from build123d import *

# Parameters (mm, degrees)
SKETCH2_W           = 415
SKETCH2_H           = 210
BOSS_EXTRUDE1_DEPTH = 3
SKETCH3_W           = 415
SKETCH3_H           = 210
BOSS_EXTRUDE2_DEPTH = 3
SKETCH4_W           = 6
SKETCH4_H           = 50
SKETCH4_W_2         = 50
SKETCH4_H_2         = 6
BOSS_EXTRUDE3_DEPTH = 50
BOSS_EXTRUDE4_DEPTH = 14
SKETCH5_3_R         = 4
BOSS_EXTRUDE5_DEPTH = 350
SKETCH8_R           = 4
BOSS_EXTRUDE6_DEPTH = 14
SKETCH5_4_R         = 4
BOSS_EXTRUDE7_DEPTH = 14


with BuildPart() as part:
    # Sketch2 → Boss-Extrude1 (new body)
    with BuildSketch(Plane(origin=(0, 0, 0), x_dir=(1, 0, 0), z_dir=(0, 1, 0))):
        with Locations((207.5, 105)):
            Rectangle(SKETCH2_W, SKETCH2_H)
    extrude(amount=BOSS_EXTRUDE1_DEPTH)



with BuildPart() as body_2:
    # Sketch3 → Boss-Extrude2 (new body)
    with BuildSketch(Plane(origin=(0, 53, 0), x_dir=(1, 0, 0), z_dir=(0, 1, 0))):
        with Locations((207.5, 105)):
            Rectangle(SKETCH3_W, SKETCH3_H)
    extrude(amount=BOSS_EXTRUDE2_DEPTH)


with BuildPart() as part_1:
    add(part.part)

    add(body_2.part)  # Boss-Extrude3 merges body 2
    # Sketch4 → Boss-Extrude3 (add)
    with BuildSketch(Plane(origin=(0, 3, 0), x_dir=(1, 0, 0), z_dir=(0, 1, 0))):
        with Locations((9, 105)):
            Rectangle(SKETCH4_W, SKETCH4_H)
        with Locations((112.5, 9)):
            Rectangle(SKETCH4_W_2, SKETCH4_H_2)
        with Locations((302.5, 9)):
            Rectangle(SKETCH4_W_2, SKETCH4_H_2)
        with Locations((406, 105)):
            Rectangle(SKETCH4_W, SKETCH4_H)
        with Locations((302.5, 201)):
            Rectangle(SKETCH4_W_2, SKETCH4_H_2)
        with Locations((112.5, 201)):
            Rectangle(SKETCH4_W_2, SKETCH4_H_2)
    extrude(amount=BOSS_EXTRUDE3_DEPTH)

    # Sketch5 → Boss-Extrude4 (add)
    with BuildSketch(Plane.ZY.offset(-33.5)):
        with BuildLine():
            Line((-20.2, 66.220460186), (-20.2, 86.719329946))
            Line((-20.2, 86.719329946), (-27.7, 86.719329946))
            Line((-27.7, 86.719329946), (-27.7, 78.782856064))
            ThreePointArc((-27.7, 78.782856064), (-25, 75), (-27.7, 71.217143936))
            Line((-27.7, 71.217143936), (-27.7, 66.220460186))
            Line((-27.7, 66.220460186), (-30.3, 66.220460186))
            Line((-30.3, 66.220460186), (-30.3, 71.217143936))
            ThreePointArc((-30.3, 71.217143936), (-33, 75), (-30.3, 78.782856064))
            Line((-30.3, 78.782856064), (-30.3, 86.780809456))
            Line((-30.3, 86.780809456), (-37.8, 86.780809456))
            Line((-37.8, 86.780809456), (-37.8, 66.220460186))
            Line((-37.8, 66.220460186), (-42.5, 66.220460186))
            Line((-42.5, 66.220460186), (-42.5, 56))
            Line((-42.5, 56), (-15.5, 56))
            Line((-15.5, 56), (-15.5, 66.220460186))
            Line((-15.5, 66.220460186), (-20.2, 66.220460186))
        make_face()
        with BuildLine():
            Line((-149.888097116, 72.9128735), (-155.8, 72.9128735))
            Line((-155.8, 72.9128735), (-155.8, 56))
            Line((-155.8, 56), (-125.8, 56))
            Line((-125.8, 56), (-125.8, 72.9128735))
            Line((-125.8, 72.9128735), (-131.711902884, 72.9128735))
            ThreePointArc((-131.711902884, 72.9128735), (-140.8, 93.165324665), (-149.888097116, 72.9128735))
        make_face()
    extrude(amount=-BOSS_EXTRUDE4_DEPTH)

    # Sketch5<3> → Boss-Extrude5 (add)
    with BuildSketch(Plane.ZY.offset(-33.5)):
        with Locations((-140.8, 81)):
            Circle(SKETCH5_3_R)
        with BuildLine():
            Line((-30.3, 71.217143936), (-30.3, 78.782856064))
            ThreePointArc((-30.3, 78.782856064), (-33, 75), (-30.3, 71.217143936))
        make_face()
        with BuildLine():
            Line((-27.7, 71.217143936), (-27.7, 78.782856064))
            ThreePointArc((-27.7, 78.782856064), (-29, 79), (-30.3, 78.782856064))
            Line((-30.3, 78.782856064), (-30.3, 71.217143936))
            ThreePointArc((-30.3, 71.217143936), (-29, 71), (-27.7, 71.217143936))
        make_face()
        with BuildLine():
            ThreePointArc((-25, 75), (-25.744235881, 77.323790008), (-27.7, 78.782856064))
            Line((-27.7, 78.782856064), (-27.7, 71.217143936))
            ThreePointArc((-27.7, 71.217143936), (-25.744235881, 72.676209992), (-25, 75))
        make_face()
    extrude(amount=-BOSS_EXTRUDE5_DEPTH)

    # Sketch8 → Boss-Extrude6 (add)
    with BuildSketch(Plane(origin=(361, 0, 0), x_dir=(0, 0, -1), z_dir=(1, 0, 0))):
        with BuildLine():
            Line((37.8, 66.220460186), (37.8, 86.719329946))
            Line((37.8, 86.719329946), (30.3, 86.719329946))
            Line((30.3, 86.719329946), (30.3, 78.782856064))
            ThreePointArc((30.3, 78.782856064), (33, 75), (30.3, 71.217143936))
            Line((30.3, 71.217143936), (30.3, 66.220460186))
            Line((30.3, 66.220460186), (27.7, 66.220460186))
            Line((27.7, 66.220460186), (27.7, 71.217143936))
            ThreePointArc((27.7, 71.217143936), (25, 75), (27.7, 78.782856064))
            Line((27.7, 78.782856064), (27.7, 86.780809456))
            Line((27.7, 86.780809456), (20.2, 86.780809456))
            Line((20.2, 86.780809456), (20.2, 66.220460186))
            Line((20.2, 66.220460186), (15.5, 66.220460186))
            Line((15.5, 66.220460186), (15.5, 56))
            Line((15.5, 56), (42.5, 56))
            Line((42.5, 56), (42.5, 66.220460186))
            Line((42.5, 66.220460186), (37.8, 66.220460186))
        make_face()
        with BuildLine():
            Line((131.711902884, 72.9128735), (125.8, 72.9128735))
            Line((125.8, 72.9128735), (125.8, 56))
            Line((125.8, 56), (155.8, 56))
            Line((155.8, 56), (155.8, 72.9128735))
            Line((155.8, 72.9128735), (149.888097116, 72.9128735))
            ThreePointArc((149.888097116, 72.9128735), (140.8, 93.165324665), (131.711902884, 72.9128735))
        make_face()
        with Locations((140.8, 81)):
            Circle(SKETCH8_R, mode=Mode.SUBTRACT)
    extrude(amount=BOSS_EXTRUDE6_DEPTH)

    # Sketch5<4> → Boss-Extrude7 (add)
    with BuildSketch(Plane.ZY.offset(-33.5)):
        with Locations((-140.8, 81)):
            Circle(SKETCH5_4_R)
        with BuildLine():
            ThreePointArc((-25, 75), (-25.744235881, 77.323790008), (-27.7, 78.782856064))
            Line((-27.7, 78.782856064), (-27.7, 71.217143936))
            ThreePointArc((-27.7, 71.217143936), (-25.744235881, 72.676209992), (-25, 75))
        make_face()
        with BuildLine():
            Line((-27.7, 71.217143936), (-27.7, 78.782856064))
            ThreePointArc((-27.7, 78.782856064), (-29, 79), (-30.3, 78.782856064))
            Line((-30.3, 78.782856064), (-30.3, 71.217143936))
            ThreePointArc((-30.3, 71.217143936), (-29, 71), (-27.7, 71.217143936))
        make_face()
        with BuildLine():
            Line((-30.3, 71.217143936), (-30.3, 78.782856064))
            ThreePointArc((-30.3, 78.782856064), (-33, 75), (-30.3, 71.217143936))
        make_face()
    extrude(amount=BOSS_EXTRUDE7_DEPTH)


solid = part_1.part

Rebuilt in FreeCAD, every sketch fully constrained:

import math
import FreeCAD as App
import Part
import Sketcher
Q = App.Units.Quantity


def add_polygon(sketch, points):
    """Adds a closed chain of lines whose ends are joined by coincident constraints."""
    first, n = sketch.GeometryCount, len(points)
    for a, b in zip(points, points[1:] + points[:1]):
        sketch.addGeometry(Part.LineSegment(App.Vector(*a, 0), App.Vector(*b, 0)), False)
    for i in range(n):
        sketch.addConstraint(Sketcher.Constraint("Coincident", first + i, 2, first + (i + 1) % n, 1))

doc = App.newDocument("Part")
body = doc.addObject("PartDesign::Body", "Body")

# Sketch on XZ plane
sketch1 = body.newObject("Sketcher::SketchObject", "Sketch")
sketch1.AttachmentSupport = (doc.getObject("XZ_Plane"), [""])
sketch1.MapMode = "FlatFace"
add_polygon(sketch1, [(0, -210), (0, 0), (415, 0), (415, -210)])  # lines 0-3
sketch1.addConstraint([
    Sketcher.Constraint("Vertical", 0),
    Sketcher.Constraint("Horizontal", 1),
    Sketcher.Constraint("Vertical", 2),
    Sketcher.Constraint("Horizontal", 3),
    Sketcher.Constraint("Coincident", 0, 2, -1, 1),
    Sketcher.Constraint("DistanceX", 1, 1, 1, 2, Q("415 mm")),
    Sketcher.Constraint("DistanceY", 0, 1, 0, 2, Q("210 mm")),
])
pad1 = body.newObject("PartDesign::Pad", "Pad")
pad1.Profile = sketch1
pad1.Length = 3
pad1.Reversed = True
body2 = doc.addObject("PartDesign::Body", "Body001")

# Sketch on XZ plane
sketch2 = body2.newObject("Sketcher::SketchObject", "Sketch001")
sketch2.AttachmentSupport = (doc.getObject("XZ_Plane001"), [""])
sketch2.MapMode = "FlatFace"
sketch2.AttachmentOffset = App.Placement(App.Vector(0, 0, -53), App.Rotation())
add_polygon(sketch2, [(0, -210), (0, 0), (415, 0), (415, -210)])  # lines 0-3
sketch2.addConstraint([
    Sketcher.Constraint("Vertical", 0),
    Sketcher.Constraint("Horizontal", 1),
    Sketcher.Constraint("Vertical", 2),
    Sketcher.Constraint("Horizontal", 3),
    Sketcher.Constraint("Coincident", 0, 2, -1, 1),
    Sketcher.Constraint("DistanceX", 1, 1, 1, 2, Q("415 mm")),
    Sketcher.Constraint("DistanceY", 0, 1, 0, 2, Q("210 mm")),
])
pad2 = body2.newObject("PartDesign::Pad", "Pad001")
pad2.Profile = sketch2
pad2.Length = 3
pad2.Reversed = True
body.AllowCompound = True
doc.recompute()

boolean = body.newObject("PartDesign::Boolean", "Boolean")
boolean.Type = "Fuse"
boolean.addObjects([body2])

# Sketch on XZ plane
sketch3 = body.newObject("Sketcher::SketchObject", "Sketch002")
sketch3.AttachmentSupport = (doc.getObject("XZ_Plane"), [""])
sketch3.MapMode = "FlatFace"
sketch3.AttachmentOffset = App.Placement(App.Vector(0, 0, -3), App.Rotation())
add_polygon(sketch3, [(6, -130), (6, -80), (12, -80), (12, -130)])  # lines 0-3
add_polygon(sketch3, [(88, -12), (88, -6), (138, -6), (138, -12)])  # lines 4-7
add_polygon(sketch3, [(278, -12), (278, -6), (328, -6), (328, -12)])  # lines 8-11
add_polygon(sketch3, [(403, -130), (403, -80), (409, -80), (409, -130)])  # lines 12-15
add_polygon(sketch3, [(278, -204), (278, -198), (328, -198), (328, -204)])  # lines 16-19
add_polygon(sketch3, [(88, -204), (88, -198), (138, -198), (138, -204)])  # lines 20-23
sketch3.addConstraint([
    Sketcher.Constraint("Vertical", 0),
    Sketcher.Constraint("Horizontal", 1),
    Sketcher.Constraint("Vertical", 2),
    Sketcher.Constraint("Horizontal", 3),
    Sketcher.Constraint("Vertical", 4),
    Sketcher.Constraint("Horizontal", 5),
    Sketcher.Constraint("Vertical", 6),
    Sketcher.Constraint("Horizontal", 7),
    Sketcher.Constraint("Vertical", 8),
    Sketcher.Constraint("Horizontal", 9),
    Sketcher.Constraint("Vertical", 10),
    Sketcher.Constraint("Horizontal", 11),
    Sketcher.Constraint("Vertical", 12),
    Sketcher.Constraint("Horizontal", 13),
    Sketcher.Constraint("Vertical", 14),
    Sketcher.Constraint("Horizontal", 15),
    Sketcher.Constraint("Vertical", 16),
    Sketcher.Constraint("Horizontal", 17),
    Sketcher.Constraint("Vertical", 18),
    Sketcher.Constraint("Horizontal", 19),
    Sketcher.Constraint("Vertical", 20),
    Sketcher.Constraint("Horizontal", 21),
    Sketcher.Constraint("Vertical", 22),
    Sketcher.Constraint("Horizontal", 23),
    Sketcher.Constraint("Horizontal", 5, 2, 8, 2),
    Sketcher.Constraint("Horizontal", 7, 2, 10, 2),
    Sketcher.Constraint("Horizontal", 1, 2, 12, 2),
    Sketcher.Constraint("Horizontal", 3, 2, 14, 2),
    Sketcher.Constraint("Horizontal", 17, 2, 20, 2),
    Sketcher.Constraint("Horizontal", 19, 2, 22, 2),
    Sketcher.Constraint("Vertical", 11, 2, 16, 2),
    Sketcher.Constraint("Vertical", 10, 2, 17, 2),
    Sketcher.Constraint("Vertical", 7, 2, 20, 2),
    Sketcher.Constraint("Vertical", 6, 2, 21, 2),
    Sketcher.Constraint("Equal", 7, 9),
    Sketcher.Constraint("Equal", 3, 13),
    Sketcher.Constraint("Equal", 23, 0),
    Sketcher.Constraint("Equal", 15, 4),
    Sketcher.Constraint("Equal", 10, 16),
    Sketcher.Constraint("DistanceX", 1, 1, 1, 2, Q("6 mm")),
    Sketcher.Constraint("DistanceX", 5, 1, 5, 2, Q("50 mm")),
    Sketcher.Constraint("DistanceX", -1, 1, 0, 2, Q("6 mm")),
    Sketcher.Constraint("DistanceY", 0, 2, -1, 1, Q("80 mm")),
    Sketcher.Constraint("DistanceY", 4, 2, -1, 1, Q("6 mm")),
    Sketcher.Constraint("DistanceX", -1, 1, 12, 2, Q("403 mm")),
    Sketcher.Constraint("DistanceY", 16, 2, -1, 1, Q("198 mm")),
    Sketcher.Constraint("DistanceX", 5, 2, 8, 2, Q("140 mm")),
    Sketcher.Constraint("DistanceX", -1, 1, 4, 2, Q("87.5 mm")),
])
pad3 = body.newObject("PartDesign::Pad", "Pad002")
pad3.Profile = sketch3
pad3.Length = 50
pad3.Reversed = True

# Sketch on YZ plane
sketch4 = body.newObject("Sketcher::SketchObject", "Sketch003")
sketch4.AttachmentSupport = (doc.getObject("YZ_Plane"), [""])
sketch4.MapMode = "FlatFace"
sketch4.AttachmentOffset = App.Placement(App.Vector(0, 0, 33.5), App.Rotation())
sketch4.addGeometry([
    Part.LineSegment(App.Vector(66.2, -20.2, 0), App.Vector(86.7, -20.2, 0)),  # 0
    Part.LineSegment(App.Vector(86.7, -20.2, 0), App.Vector(86.7, -27.7, 0)),  # 1
    Part.LineSegment(App.Vector(86.7, -27.7, 0), App.Vector(78.8, -27.7, 0)),  # 2
    Part.ArcOfCircle(Part.Circle(App.Vector(75, -29, 0), App.Vector(0, 0, 1), 4), math.radians(19), math.radians(161)),  # 3
    Part.LineSegment(App.Vector(71.2, -27.7, 0), App.Vector(66.2, -27.7, 0)),  # 4
    Part.LineSegment(App.Vector(66.2, -27.7, 0), App.Vector(66.2, -30.3, 0)),  # 5
    Part.LineSegment(App.Vector(66.2, -30.3, 0), App.Vector(71.2, -30.3, 0)),  # 6
    Part.ArcOfCircle(Part.Circle(App.Vector(75, -29, 0), App.Vector(0, 0, 1), 4), math.radians(-161), math.radians(-19)),  # 7
    Part.LineSegment(App.Vector(78.8, -30.3, 0), App.Vector(86.8, -30.3, 0)),  # 8
    Part.LineSegment(App.Vector(86.8, -30.3, 0), App.Vector(86.8, -37.8, 0)),  # 9
    Part.LineSegment(App.Vector(86.8, -37.8, 0), App.Vector(66.2, -37.8, 0)),  # 10
    Part.LineSegment(App.Vector(66.2, -37.8, 0), App.Vector(66.2, -42.5, 0)),  # 11
    Part.LineSegment(App.Vector(66.2, -42.5, 0), App.Vector(56, -42.5, 0)),  # 12
    Part.LineSegment(App.Vector(56, -42.5, 0), App.Vector(56, -15.5, 0)),  # 13
    Part.LineSegment(App.Vector(56, -15.5, 0), App.Vector(66.2, -15.5, 0)),  # 14
    Part.LineSegment(App.Vector(66.2, -15.5, 0), App.Vector(66.2, -20.2, 0)),  # 15
    Part.LineSegment(App.Vector(72.9, -149.9, 0), App.Vector(72.9, -155.8, 0)),  # 16
    Part.LineSegment(App.Vector(72.9, -155.8, 0), App.Vector(56, -155.8, 0)),  # 17
    Part.LineSegment(App.Vector(56, -155.8, 0), App.Vector(56, -125.8, 0)),  # 18
    Part.LineSegment(App.Vector(56, -125.8, 0), App.Vector(72.9, -125.8, 0)),  # 19
    Part.LineSegment(App.Vector(72.9, -125.8, 0), App.Vector(72.9, -131.7, 0)),  # 20
    Part.ArcOfCircle(Part.Circle(App.Vector(81, -140.8, 0), App.Vector(0, 0, 1), 12.2), math.radians(-132), math.radians(132)),  # 21
], False)
sketch4.addConstraint([
    Sketcher.Constraint("Coincident", 0, 2, 1, 1),
    Sketcher.Constraint("Coincident", 1, 2, 2, 1),
    Sketcher.Constraint("Coincident", 2, 2, 3, 1),
    Sketcher.Constraint("Coincident", 3, 2, 4, 1),
    Sketcher.Constraint("Coincident", 4, 2, 5, 1),
    Sketcher.Constraint("Coincident", 5, 2, 6, 1),
    Sketcher.Constraint("Coincident", 6, 2, 7, 1),
    Sketcher.Constraint("Coincident", 7, 2, 8, 1),
    Sketcher.Constraint("Coincident", 8, 2, 9, 1),
    Sketcher.Constraint("Coincident", 9, 2, 10, 1),
    Sketcher.Constraint("Coincident", 10, 2, 11, 1),
    Sketcher.Constraint("Coincident", 11, 2, 12, 1),
    Sketcher.Constraint("Coincident", 12, 2, 13, 1),
    Sketcher.Constraint("Coincident", 13, 2, 14, 1),
    Sketcher.Constraint("Coincident", 14, 2, 15, 1),
    Sketcher.Constraint("Coincident", 15, 2, 0, 1),
    Sketcher.Constraint("Coincident", 16, 2, 17, 1),
    Sketcher.Constraint("Coincident", 17, 2, 18, 1),
    Sketcher.Constraint("Coincident", 18, 2, 19, 1),
    Sketcher.Constraint("Coincident", 19, 2, 20, 1),
    Sketcher.Constraint("Coincident", 20, 2, 21, 2),
    Sketcher.Constraint("Coincident", 21, 1, 16, 1),
    Sketcher.Constraint("Horizontal", 0),
    Sketcher.Constraint("Vertical", 1),
    Sketcher.Constraint("Horizontal", 2),
    Sketcher.Constraint("Horizontal", 4),
    Sketcher.Constraint("Vertical", 5),
    Sketcher.Constraint("Horizontal", 6),
    Sketcher.Constraint("Horizontal", 8),
    Sketcher.Constraint("Vertical", 9),
    Sketcher.Constraint("Horizontal", 10),
    Sketcher.Constraint("Vertical", 11),
    Sketcher.Constraint("Horizontal", 12),
    Sketcher.Constraint("Vertical", 13),
    Sketcher.Constraint("Horizontal", 14),
    Sketcher.Constraint("Vertical", 15),
    Sketcher.Constraint("Vertical", 16),
    Sketcher.Constraint("Horizontal", 17),
    Sketcher.Constraint("Vertical", 18),
    Sketcher.Constraint("Horizontal", 19),
    Sketcher.Constraint("Vertical", 20),
    Sketcher.Constraint("Coincident", 7, 3, 3, 3),
    Sketcher.Constraint("Equal", 3, 7),
    Sketcher.Constraint("Horizontal", 2, 2, 3, 2),
    Sketcher.Constraint("Horizontal", 6, 2, 7, 2),
    Sketcher.Constraint("Vertical", 3, 2, 6, 2),
    Sketcher.Constraint("Vertical", 5, 2, 10, 2),
    Sketcher.Constraint("Vertical", 11, 2, 14, 2),
    Sketcher.Constraint("Vertical", 13, 2, 17, 2),
    Sketcher.Constraint("Vertical", 16, 2, 19, 2),
    Sketcher.Constraint("Equal", 1, 9),
    Sketcher.Constraint("Equal", 11, 15),
    Sketcher.Constraint("Equal", 16, 20),
    Sketcher.Constraint("Radius", 3, Q("4 mm")),
    Sketcher.Constraint("DistanceY", 13, 1, 13, 2, Q("27 mm")),
    Sketcher.Constraint("DistanceY", 18, 1, 18, 2, Q("30 mm")),
    Sketcher.Constraint("DistanceY", 1, 2, 1, 1, Q("7.5 mm")),
    Sketcher.Constraint("DistanceY", 5, 2, 5, 1, Q("2.6 mm")),
    Sketcher.Constraint("DistanceX", -1, 1, 3, 3, Q("75 mm")),
    Sketcher.Constraint("DistanceY", 3, 3, -1, 1, Q("29 mm")),
    Sketcher.Constraint("DistanceX", -1, 1, 21, 3, Q("81 mm")),
    Sketcher.Constraint("DistanceX", -1, 1, 12, 2, Q("56 mm")),
    Sketcher.Constraint("DistanceY", 16, 2, 10, 2, Q("118 mm")),
    Sketcher.Constraint("Radius", 21, Q("12.165325 mm")),
    Sketcher.Constraint("DistanceX", 0, 1, 0, 2, Q("20.49887 mm")),
    Sketcher.Constraint("DistanceX", 10, 2, 10, 1, Q("20.560349 mm")),
    Sketcher.Constraint("DistanceX", 12, 2, 12, 1, Q("10.22046 mm")),
    Sketcher.Constraint("DistanceX", 17, 2, 17, 1, Q("16.912874 mm")),
])
pad4 = body.newObject("PartDesign::Pad", "Pad003")
pad4.Profile = sketch4
pad4.Length = 14

# Sketch on YZ plane
sketch5 = body.newObject("Sketcher::SketchObject", "Sketch004")
sketch5.AttachmentSupport = (doc.getObject("YZ_Plane"), [""])
sketch5.MapMode = "FlatFace"
sketch5.AttachmentOffset = App.Placement(App.Vector(0, 0, 33.5), App.Rotation())
sketch5.addGeometry([
    Part.Circle(App.Vector(81, -140.8, 0), App.Vector(0, 0, 1), 4),  # 0
    Part.ArcOfCircle(Part.Circle(App.Vector(75, -29, 0), App.Vector(0, 0, 1), 4), math.radians(-161), math.radians(-19)),  # 1
    Part.ArcOfCircle(Part.Circle(App.Vector(75, -29, 0), App.Vector(0, 0, 1), 4), math.radians(161), math.radians(199)),  # 2
    Part.ArcOfCircle(Part.Circle(App.Vector(75, -29, 0), App.Vector(0, 0, 1), 4), math.radians(90), math.radians(161)),  # 3
    Part.ArcOfCircle(Part.Circle(App.Vector(75, -29, 0), App.Vector(0, 0, 1), 4), math.radians(19), math.radians(90)),  # 4
    Part.ArcOfCircle(Part.Circle(App.Vector(75, -29, 0), App.Vector(0, 0, 1), 4), math.radians(-19), math.radians(19)),  # 5
], False)
sketch5.addConstraint([
    Sketcher.Constraint("Tangent", 1, 1, 2, 2),
    Sketcher.Constraint("Tangent", 2, 1, 3, 2),
    Sketcher.Constraint("Tangent", 3, 1, 4, 2),
    Sketcher.Constraint("Tangent", 4, 1, 5, 2),
    Sketcher.Constraint("Tangent", 5, 1, 1, 2),
    Sketcher.Constraint("Coincident", 3, 3, 1, 3),
    Sketcher.Constraint("Equal", 0, 1),
    Sketcher.Constraint("Horizontal", 2, 1, 4, 1),
    Sketcher.Constraint("Horizontal", 1, 1, 5, 1),
    Sketcher.Constraint("Vertical", 1, 1, 2, 1),
    Sketcher.Constraint("Vertical", 5, 3, 3, 1),
    Sketcher.Constraint("Diameter", 0, Q("8 mm")),
    Sketcher.Constraint("DistanceX", -1, 1, 0, 3, Q("81 mm")),
    Sketcher.Constraint("DistanceX", -1, 1, 1, 3, Q("75 mm")),
    Sketcher.Constraint("DistanceY", 1, 3, -1, 1, Q("29 mm")),
    Sketcher.Constraint("DistanceY", 0, 3, -1, 1, Q("140.8 mm")),
    Sketcher.Constraint("DistanceY", 1, 1, -1, 1, Q("30.3 mm")),
])
pad5 = body.newObject("PartDesign::Pad", "Pad004")
pad5.Profile = sketch5
pad5.Length = 350

# Sketch on YZ plane
sketch6 = body.newObject("Sketcher::SketchObject", "Sketch005")
sketch6.AttachmentSupport = (doc.getObject("YZ_Plane"), [""])
sketch6.MapMode = "FlatFace"
sketch6.AttachmentOffset = App.Placement(App.Vector(0, 0, 361), App.Rotation())
sketch6.addGeometry([
    Part.LineSegment(App.Vector(66.2, -37.8, 0), App.Vector(86.7, -37.8, 0)),  # 0
    Part.LineSegment(App.Vector(86.7, -37.8, 0), App.Vector(86.7, -30.3, 0)),  # 1
    Part.LineSegment(App.Vector(86.7, -30.3, 0), App.Vector(78.8, -30.3, 0)),  # 2
    Part.ArcOfCircle(Part.Circle(App.Vector(75, -29, 0), App.Vector(0, 0, 1), 4), math.radians(-161), math.radians(-19)),  # 3
    Part.LineSegment(App.Vector(71.2, -30.3, 0), App.Vector(66.2, -30.3, 0)),  # 4
    Part.LineSegment(App.Vector(66.2, -30.3, 0), App.Vector(66.2, -27.7, 0)),  # 5
    Part.LineSegment(App.Vector(66.2, -27.7, 0), App.Vector(71.2, -27.7, 0)),  # 6
    Part.ArcOfCircle(Part.Circle(App.Vector(75, -29, 0), App.Vector(0, 0, 1), 4), math.radians(19), math.radians(161)),  # 7
    Part.LineSegment(App.Vector(78.8, -27.7, 0), App.Vector(86.8, -27.7, 0)),  # 8
    Part.LineSegment(App.Vector(86.8, -27.7, 0), App.Vector(86.8, -20.2, 0)),  # 9
    Part.LineSegment(App.Vector(86.8, -20.2, 0), App.Vector(66.2, -20.2, 0)),  # 10
    Part.LineSegment(App.Vector(66.2, -20.2, 0), App.Vector(66.2, -15.5, 0)),  # 11
    Part.LineSegment(App.Vector(66.2, -15.5, 0), App.Vector(56, -15.5, 0)),  # 12
    Part.LineSegment(App.Vector(56, -15.5, 0), App.Vector(56, -42.5, 0)),  # 13
    Part.LineSegment(App.Vector(56, -42.5, 0), App.Vector(66.2, -42.5, 0)),  # 14
    Part.LineSegment(App.Vector(66.2, -42.5, 0), App.Vector(66.2, -37.8, 0)),  # 15
    Part.LineSegment(App.Vector(72.9, -131.7, 0), App.Vector(72.9, -125.8, 0)),  # 16
    Part.LineSegment(App.Vector(72.9, -125.8, 0), App.Vector(56, -125.8, 0)),  # 17
    Part.LineSegment(App.Vector(56, -125.8, 0), App.Vector(56, -155.8, 0)),  # 18
    Part.LineSegment(App.Vector(56, -155.8, 0), App.Vector(72.9, -155.8, 0)),  # 19
    Part.LineSegment(App.Vector(72.9, -155.8, 0), App.Vector(72.9, -149.9, 0)),  # 20
    Part.ArcOfCircle(Part.Circle(App.Vector(81, -140.8, 0), App.Vector(0, 0, 1), 12.2), math.radians(-132), math.radians(132)),  # 21
    Part.Circle(App.Vector(81, -140.8, 0), App.Vector(0, 0, 1), 4),  # 22
], False)
sketch6.addConstraint([
    Sketcher.Constraint("Coincident", 0, 2, 1, 1),
    Sketcher.Constraint("Coincident", 1, 2, 2, 1),
    Sketcher.Constraint("Coincident", 2, 2, 3, 2),
    Sketcher.Constraint("Coincident", 3, 1, 4, 1),
    Sketcher.Constraint("Coincident", 4, 2, 5, 1),
    Sketcher.Constraint("Coincident", 5, 2, 6, 1),
    Sketcher.Constraint("Coincident", 6, 2, 7, 2),
    Sketcher.Constraint("Coincident", 7, 1, 8, 1),
    Sketcher.Constraint("Coincident", 8, 2, 9, 1),
    Sketcher.Constraint("Coincident", 9, 2, 10, 1),
    Sketcher.Constraint("Coincident", 10, 2, 11, 1),
    Sketcher.Constraint("Coincident", 11, 2, 12, 1),
    Sketcher.Constraint("Coincident", 12, 2, 13, 1),
    Sketcher.Constraint("Coincident", 13, 2, 14, 1),
    Sketcher.Constraint("Coincident", 14, 2, 15, 1),
    Sketcher.Constraint("Coincident", 15, 2, 0, 1),
    Sketcher.Constraint("Coincident", 16, 2, 17, 1),
    Sketcher.Constraint("Coincident", 17, 2, 18, 1),
    Sketcher.Constraint("Coincident", 18, 2, 19, 1),
    Sketcher.Constraint("Coincident", 19, 2, 20, 1),
    Sketcher.Constraint("Coincident", 20, 2, 21, 1),
    Sketcher.Constraint("Coincident", 21, 2, 16, 1),
    Sketcher.Constraint("Horizontal", 0),
    Sketcher.Constraint("Vertical", 1),
    Sketcher.Constraint("Horizontal", 2),
    Sketcher.Constraint("Horizontal", 4),
    Sketcher.Constraint("Vertical", 5),
    Sketcher.Constraint("Horizontal", 6),
    Sketcher.Constraint("Horizontal", 8),
    Sketcher.Constraint("Vertical", 9),
    Sketcher.Constraint("Horizontal", 10),
    Sketcher.Constraint("Vertical", 11),
    Sketcher.Constraint("Horizontal", 12),
    Sketcher.Constraint("Vertical", 13),
    Sketcher.Constraint("Horizontal", 14),
    Sketcher.Constraint("Vertical", 15),
    Sketcher.Constraint("Vertical", 16),
    Sketcher.Constraint("Horizontal", 17),
    Sketcher.Constraint("Vertical", 18),
    Sketcher.Constraint("Horizontal", 19),
    Sketcher.Constraint("Vertical", 20),
    Sketcher.Constraint("Coincident", 7, 3, 3, 3),
    Sketcher.Constraint("Coincident", 22, 3, 21, 3),
    Sketcher.Constraint("Equal", 3, 7),
    Sketcher.Constraint("Equal", 7, 22),
    Sketcher.Constraint("Horizontal", 2, 2, 3, 1),
    Sketcher.Constraint("Horizontal", 6, 2, 7, 1),
    Sketcher.Constraint("Vertical", 3, 1, 6, 2),
    Sketcher.Constraint("Vertical", 5, 2, 10, 2),
    Sketcher.Constraint("Vertical", 11, 2, 14, 2),
    Sketcher.Constraint("Vertical", 13, 2, 17, 2),
    Sketcher.Constraint("Vertical", 16, 2, 19, 2),
    Sketcher.Constraint("Equal", 1, 9),
    Sketcher.Constraint("Equal", 11, 15),
    Sketcher.Constraint("Equal", 16, 20),
    Sketcher.Constraint("Diameter", 22, Q("8 mm")),
    Sketcher.Constraint("DistanceY", 13, 2, 13, 1, Q("27 mm")),
    Sketcher.Constraint("DistanceY", 18, 2, 18, 1, Q("30 mm")),
    Sketcher.Constraint("DistanceY", 1, 1, 1, 2, Q("7.5 mm")),
    Sketcher.Constraint("DistanceY", 5, 1, 5, 2, Q("2.6 mm")),
    Sketcher.Constraint("DistanceX", -1, 1, 3, 3, Q("75 mm")),
    Sketcher.Constraint("DistanceY", 3, 3, -1, 1, Q("29 mm")),
    Sketcher.Constraint("DistanceX", -1, 1, 21, 3, Q("81 mm")),
    Sketcher.Constraint("DistanceX", -1, 1, 12, 2, Q("56 mm")),
    Sketcher.Constraint("DistanceY", 21, 3, 0, 2, Q("103 mm")),
    Sketcher.Constraint("Radius", 21, Q("12.165325 mm")),
    Sketcher.Constraint("DistanceX", 0, 1, 0, 2, Q("20.49887 mm")),
    Sketcher.Constraint("DistanceX", 10, 2, 10, 1, Q("20.560349 mm")),
    Sketcher.Constraint("DistanceX", 12, 2, 12, 1, Q("10.22046 mm")),
    Sketcher.Constraint("DistanceX", 17, 2, 17, 1, Q("16.912874 mm")),
])
pad6 = body.newObject("PartDesign::Pad", "Pad005")
pad6.Profile = sketch6
pad6.Length = 14

# Sketch on YZ plane
sketch7 = body.newObject("Sketcher::SketchObject", "Sketch006")
sketch7.AttachmentSupport = (doc.getObject("YZ_Plane"), [""])
sketch7.MapMode = "FlatFace"
sketch7.AttachmentOffset = App.Placement(App.Vector(0, 0, 33.5), App.Rotation())
sketch7.addGeometry([
    Part.Circle(App.Vector(81, -140.8, 0), App.Vector(0, 0, 1), 4),  # 0
    Part.ArcOfCircle(Part.Circle(App.Vector(75, -29, 0), App.Vector(0, 0, 1), 4), math.radians(19), math.radians(90)),  # 1
    Part.ArcOfCircle(Part.Circle(App.Vector(75, -29, 0), App.Vector(0, 0, 1), 4), math.radians(-19), math.radians(19)),  # 2
    Part.ArcOfCircle(Part.Circle(App.Vector(75, -29, 0), App.Vector(0, 0, 1), 4), math.radians(-161), math.radians(-19)),  # 3
    Part.ArcOfCircle(Part.Circle(App.Vector(75, -29, 0), App.Vector(0, 0, 1), 4), math.radians(161), math.radians(199)),  # 4
    Part.ArcOfCircle(Part.Circle(App.Vector(75, -29, 0), App.Vector(0, 0, 1), 4), math.radians(90), math.radians(161)),  # 5
], False)
sketch7.addConstraint([
    Sketcher.Constraint("Tangent", 1, 1, 2, 2),
    Sketcher.Constraint("Tangent", 2, 1, 3, 2),
    Sketcher.Constraint("Tangent", 3, 1, 4, 2),
    Sketcher.Constraint("Tangent", 4, 1, 5, 2),
    Sketcher.Constraint("Tangent", 5, 1, 1, 2),
    Sketcher.Constraint("Coincident", 3, 3, 1, 3),
    Sketcher.Constraint("Equal", 0, 1),
    Sketcher.Constraint("Horizontal", 2, 1, 3, 1),
    Sketcher.Constraint("Horizontal", 1, 1, 4, 1),
    Sketcher.Constraint("Vertical", 1, 1, 2, 1),
    Sketcher.Constraint("Vertical", 4, 3, 5, 1),
    Sketcher.Constraint("Diameter", 0, Q("8 mm")),
    Sketcher.Constraint("DistanceX", -1, 1, 0, 3, Q("81 mm")),
    Sketcher.Constraint("DistanceX", -1, 1, 1, 3, Q("75 mm")),
    Sketcher.Constraint("DistanceY", 1, 3, -1, 1, Q("29 mm")),
    Sketcher.Constraint("DistanceY", 0, 3, -1, 1, Q("140.8 mm")),
    Sketcher.Constraint("DistanceY", 1, 1, -1, 1, Q("27.7 mm")),
])
pad7 = body.newObject("PartDesign::Pad", "Pad006")
pad7.Profile = sketch7
pad7.Length = 14
pad7.Reversed = True

doc.recompute()
